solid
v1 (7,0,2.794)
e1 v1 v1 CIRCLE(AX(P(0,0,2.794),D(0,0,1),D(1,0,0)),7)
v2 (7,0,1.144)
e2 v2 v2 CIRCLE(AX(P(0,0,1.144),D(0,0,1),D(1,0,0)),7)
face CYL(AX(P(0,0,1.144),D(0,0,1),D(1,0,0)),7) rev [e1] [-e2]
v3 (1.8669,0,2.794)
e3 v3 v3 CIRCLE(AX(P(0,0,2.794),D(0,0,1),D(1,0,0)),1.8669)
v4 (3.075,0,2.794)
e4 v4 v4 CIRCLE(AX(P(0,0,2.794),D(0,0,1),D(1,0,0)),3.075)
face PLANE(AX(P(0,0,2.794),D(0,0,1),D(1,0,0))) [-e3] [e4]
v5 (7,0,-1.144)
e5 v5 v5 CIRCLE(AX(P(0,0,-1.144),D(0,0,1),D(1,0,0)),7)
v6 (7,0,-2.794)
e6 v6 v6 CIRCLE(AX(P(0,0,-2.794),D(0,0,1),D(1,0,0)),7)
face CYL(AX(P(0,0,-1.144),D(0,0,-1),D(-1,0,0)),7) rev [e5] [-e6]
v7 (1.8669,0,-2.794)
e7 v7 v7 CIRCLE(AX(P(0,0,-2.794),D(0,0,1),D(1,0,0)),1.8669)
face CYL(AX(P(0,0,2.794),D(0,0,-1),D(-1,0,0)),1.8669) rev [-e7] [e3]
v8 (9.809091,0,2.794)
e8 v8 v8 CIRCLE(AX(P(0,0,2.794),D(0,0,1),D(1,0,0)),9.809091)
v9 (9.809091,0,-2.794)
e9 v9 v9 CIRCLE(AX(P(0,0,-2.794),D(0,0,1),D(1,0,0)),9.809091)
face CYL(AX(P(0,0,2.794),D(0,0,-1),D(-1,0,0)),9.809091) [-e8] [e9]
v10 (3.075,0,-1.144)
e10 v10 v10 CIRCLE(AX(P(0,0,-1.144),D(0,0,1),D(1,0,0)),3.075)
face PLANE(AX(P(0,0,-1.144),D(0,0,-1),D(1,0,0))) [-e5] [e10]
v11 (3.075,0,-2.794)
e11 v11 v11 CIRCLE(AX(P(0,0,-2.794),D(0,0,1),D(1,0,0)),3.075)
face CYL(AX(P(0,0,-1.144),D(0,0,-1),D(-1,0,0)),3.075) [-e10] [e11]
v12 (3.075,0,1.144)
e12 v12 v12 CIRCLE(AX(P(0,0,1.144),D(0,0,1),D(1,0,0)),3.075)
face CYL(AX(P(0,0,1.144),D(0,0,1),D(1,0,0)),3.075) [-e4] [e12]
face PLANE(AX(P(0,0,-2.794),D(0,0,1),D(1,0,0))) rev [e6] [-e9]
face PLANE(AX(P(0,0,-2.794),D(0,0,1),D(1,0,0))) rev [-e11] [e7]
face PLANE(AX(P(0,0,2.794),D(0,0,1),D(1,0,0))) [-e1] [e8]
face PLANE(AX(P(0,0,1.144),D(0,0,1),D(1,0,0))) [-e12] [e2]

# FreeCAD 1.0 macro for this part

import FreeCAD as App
import Part
import Sketcher
Q = App.Units.Quantity

doc = App.newDocument("Part")
body = doc.addObject("PartDesign::Body", "Body")

# Sketch on XY plane
sketch1 = body.newObject("Sketcher::SketchObject", "Sketch")
sketch1.AttachmentSupport = (doc.getObject("XY_Plane"), [""])
sketch1.MapMode = "FlatFace"
sketch1.addGeometry([
    Part.Circle(App.Vector(0, 0, 0), App.Vector(0, 0, 1), 9.809091),
    Part.Circle(App.Vector(0, 0, 0), App.Vector(0, 0, 1), 1.8669),
], False)
sketch1.addConstraint([
    Sketcher.Constraint("Coincident", 0, 3, -1, 1),
    Sketcher.Constraint("Coincident", 1, 3, -1, 1),
    Sketcher.Constraint("Diameter", 1, Q("0.147 in")),
    Sketcher.Constraint("Diameter", 0, Q("19.618182 mm")),
])
pad1 = body.newObject("PartDesign::Pad", "Pad")
pad1.Profile = sketch1
pad1.Length = Q("0.22 in")
pad1.Midplane = True

# Sketch on XY plane
sketch2 = body.newObject("Sketcher::SketchObject", "Sketch001")
sketch2.AttachmentSupport = (doc.getObject("XY_Plane"), [""])
sketch2.MapMode = "FlatFace"
sketch2.AttachmentOffset = App.Placement(App.Vector(0, 0, 0.11 * 25.4), App.Rotation())
sketch2.addGeometry([
    Part.Circle(App.Vector(0, 0, 0), App.Vector(0, 0, 1), 7),
    Part.Circle(App.Vector(0, 0, 0), App.Vector(0, 0, 1), 3.075),
], False)
sketch2.addConstraint([
    Sketcher.Constraint("Coincident", 0, 3, -1, 1),
    Sketcher.Constraint("Coincident", 1, 3, -1, 1),
    Sketcher.Constraint("Diameter", 0, Q("14 mm")),
    Sketcher.Constraint("Diameter", 1, Q("6.15 mm")),
])
pocket1 = body.newObject("PartDesign::Pocket", "Pocket")
pocket1.Profile = sketch2
pocket1.Length = 1.65
doc.recompute()

mirrored = body.newObject("PartDesign::Mirrored", "Mirrored")
mirrored.Originals = [pocket1]
mirrored.MirrorPlane = (doc.getObject("XY_Plane"), [""])
body.Tip = mirrored

doc.recompute()
